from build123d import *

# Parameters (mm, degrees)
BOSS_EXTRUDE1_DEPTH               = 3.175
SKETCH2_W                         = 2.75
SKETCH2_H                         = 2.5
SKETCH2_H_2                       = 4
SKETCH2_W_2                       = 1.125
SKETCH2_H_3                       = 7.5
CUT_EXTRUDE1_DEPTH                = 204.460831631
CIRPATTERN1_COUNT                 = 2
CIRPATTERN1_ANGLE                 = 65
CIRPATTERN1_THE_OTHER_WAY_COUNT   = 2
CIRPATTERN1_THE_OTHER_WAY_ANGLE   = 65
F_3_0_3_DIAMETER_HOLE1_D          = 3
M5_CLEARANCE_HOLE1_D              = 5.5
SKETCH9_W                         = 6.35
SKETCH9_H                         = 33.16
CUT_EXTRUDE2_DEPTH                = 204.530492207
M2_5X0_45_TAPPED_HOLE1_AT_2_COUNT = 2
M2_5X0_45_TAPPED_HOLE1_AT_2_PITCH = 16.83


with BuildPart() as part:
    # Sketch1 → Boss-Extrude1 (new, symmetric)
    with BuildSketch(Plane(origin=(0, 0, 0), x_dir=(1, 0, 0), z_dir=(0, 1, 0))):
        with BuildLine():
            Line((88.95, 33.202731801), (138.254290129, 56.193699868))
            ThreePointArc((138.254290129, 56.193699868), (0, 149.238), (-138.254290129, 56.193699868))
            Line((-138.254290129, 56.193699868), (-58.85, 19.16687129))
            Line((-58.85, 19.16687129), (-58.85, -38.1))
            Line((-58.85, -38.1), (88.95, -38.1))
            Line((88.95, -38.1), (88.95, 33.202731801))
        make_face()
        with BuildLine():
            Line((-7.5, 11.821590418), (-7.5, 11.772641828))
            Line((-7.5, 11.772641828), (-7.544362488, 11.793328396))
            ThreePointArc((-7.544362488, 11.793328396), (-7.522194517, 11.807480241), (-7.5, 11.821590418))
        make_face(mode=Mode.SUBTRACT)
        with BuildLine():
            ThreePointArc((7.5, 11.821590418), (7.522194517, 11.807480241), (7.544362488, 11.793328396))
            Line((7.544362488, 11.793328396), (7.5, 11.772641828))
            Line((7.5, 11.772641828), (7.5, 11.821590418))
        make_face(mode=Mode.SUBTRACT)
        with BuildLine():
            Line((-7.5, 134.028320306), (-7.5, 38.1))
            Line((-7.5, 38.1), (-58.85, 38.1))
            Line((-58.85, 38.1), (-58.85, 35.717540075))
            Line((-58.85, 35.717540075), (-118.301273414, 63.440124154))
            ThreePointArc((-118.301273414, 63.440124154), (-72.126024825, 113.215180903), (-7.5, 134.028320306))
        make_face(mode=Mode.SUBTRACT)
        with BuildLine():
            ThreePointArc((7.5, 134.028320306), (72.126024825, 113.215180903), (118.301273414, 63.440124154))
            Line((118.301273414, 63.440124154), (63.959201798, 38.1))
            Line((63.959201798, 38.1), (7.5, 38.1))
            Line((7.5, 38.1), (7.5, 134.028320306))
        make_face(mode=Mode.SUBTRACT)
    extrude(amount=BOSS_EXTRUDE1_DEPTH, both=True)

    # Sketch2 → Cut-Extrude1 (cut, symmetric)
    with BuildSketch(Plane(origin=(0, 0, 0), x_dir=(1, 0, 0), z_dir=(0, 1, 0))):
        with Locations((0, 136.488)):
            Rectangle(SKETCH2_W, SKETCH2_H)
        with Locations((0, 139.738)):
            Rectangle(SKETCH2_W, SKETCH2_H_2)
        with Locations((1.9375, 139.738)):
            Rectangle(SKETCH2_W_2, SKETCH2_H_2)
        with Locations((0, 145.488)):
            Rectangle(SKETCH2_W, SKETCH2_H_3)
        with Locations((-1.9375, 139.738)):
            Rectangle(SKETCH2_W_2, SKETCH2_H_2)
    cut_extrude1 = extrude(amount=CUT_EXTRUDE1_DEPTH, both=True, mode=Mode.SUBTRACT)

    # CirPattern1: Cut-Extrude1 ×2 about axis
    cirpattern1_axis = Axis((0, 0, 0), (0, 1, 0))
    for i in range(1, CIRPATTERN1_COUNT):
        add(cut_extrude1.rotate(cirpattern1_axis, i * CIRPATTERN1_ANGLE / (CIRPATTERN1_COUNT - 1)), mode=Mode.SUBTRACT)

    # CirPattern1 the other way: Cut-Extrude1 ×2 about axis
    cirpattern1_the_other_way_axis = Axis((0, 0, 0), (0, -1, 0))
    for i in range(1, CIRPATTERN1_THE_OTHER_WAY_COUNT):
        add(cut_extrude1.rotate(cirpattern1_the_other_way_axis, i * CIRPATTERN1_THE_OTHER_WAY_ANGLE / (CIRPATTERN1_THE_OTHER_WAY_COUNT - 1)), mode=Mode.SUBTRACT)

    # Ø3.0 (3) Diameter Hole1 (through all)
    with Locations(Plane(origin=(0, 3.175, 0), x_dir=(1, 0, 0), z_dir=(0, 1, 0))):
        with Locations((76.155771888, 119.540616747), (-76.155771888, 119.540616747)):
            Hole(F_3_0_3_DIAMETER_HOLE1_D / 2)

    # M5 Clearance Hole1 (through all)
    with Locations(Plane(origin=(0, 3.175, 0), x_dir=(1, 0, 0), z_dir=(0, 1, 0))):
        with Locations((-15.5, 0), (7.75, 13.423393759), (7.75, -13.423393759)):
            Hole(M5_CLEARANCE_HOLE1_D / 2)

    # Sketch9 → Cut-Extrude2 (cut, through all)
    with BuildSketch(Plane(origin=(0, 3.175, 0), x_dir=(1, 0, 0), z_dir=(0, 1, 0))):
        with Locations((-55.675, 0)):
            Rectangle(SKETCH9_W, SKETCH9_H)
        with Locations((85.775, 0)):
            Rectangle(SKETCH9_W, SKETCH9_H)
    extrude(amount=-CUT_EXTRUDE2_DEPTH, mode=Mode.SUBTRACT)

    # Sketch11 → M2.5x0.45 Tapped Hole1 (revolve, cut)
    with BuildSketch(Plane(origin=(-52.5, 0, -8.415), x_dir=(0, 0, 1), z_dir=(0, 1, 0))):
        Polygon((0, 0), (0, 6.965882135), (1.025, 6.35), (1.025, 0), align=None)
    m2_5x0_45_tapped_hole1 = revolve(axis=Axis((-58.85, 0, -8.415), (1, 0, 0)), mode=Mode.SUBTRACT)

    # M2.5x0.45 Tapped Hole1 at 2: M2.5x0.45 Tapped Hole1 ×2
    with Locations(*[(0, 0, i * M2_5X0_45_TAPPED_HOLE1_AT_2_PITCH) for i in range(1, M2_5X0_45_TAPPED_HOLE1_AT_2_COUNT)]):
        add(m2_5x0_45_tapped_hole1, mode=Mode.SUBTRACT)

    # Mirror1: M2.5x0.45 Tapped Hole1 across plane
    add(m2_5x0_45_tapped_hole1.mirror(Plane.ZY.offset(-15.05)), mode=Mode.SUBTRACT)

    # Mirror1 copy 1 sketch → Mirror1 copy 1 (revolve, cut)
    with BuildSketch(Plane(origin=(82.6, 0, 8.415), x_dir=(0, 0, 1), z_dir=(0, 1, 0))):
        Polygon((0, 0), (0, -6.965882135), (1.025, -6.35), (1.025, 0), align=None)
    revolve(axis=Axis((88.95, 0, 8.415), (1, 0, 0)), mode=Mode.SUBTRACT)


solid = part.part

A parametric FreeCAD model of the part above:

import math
import FreeCAD as App
import Part
import Sketcher
Q = App.Units.Quantity


def add_polygon(sketch, points):
    """Adds a closed chain of lines whose ends are joined by coincident constraints."""
    first, n = sketch.GeometryCount, len(points)
    for a, b in zip(points, points[1:] + points[:1]):
        sketch.addGeometry(Part.LineSegment(App.Vector(*a, 0), App.Vector(*b, 0)), False)
    for i in range(n):
        sketch.addConstraint(Sketcher.Constraint("Coincident", first + i, 2, first + (i + 1) % n, 1))

doc = App.newDocument("Part")
body = doc.addObject("PartDesign::Body", "Body")

# Sketch on XZ plane
sketch1 = doc.addObject("Sketcher::SketchObject", "Sketch")
body.addObject(sketch1)
sketch1.AttachmentSupport = (doc.XZ_Plane, [""])
sketch1.MapMode = "FlatFace"
sketch1.addGeometry(Part.LineSegment(App.Vector(88.95, -33.202732, 0), App.Vector(138.25429, -56.1937, 0)), False)
sketch1.addGeometry(Part.ArcOfCircle(Part.Circle(App.Vector(0, 0, 0), App.Vector(0, 0, 1), 149.238), math.radians(-157.88063), math.radians(-22.11937)), False)
sketch1.addGeometry(Part.LineSegment(App.Vector(-138.25429, -56.1937, 0), App.Vector(-58.85, -19.166871, 0)), False)
sketch1.addGeometry(Part.LineSegment(App.Vector(-58.85, -19.166871, 0), App.Vector(-58.85, 38.1, 0)), False)
sketch1.addGeometry(Part.LineSegment(App.Vector(-58.85, 38.1, 0), App.Vector(88.95, 38.1, 0)), False)
sketch1.addGeometry(Part.LineSegment(App.Vector(88.95, 38.1, 0), App.Vector(88.95, -33.202732, 0)), False)
sketch1.addGeometry(Part.ArcOfCircle(Part.Circle(App.Vector(0.000168, 0.000263, 0), App.Vector(0, 0, 1), 14.000312), math.radians(-122.607632), math.radians(-122.392368)), False)
sketch1.addGeometry(Part.LineSegment(App.Vector(-7.5, -11.82159, 0), App.Vector(-7.5, -11.772642, 0)), False)
sketch1.addGeometry(Part.LineSegment(App.Vector(-7.5, -11.772642, 0), App.Vector(-7.544362, -11.793328, 0)), False)
sketch1.addGeometry(Part.LineSegment(App.Vector(7.5, -11.772642, 0), App.Vector(7.5, -11.82159, 0)), False)
sketch1.addGeometry(Part.ArcOfCircle(Part.Circle(App.Vector(-0.000168, 0.000263, 0), App.Vector(0, 0, 1), 14.000312), math.radians(-57.607632), math.radians(-57.392368)), False)
sketch1.addGeometry(Part.LineSegment(App.Vector(7.544362, -11.793328, 0), App.Vector(7.5, -11.772642, 0)), False)
sketch1.addGeometry(Part.ArcOfCircle(Part.Circle(App.Vector(0, 0, 0), App.Vector(0, 0, 1), 134.238), math.radians(-151.797165), math.radians(-93.202835)), False)
sketch1.addGeometry(Part.LineSegment(App.Vector(-7.5, -134.02832, 0), App.Vector(-7.5, -38.1, 0)), False)
sketch1.addGeometry(Part.LineSegment(App.Vector(-7.5, -38.1, 0), App.Vector(-58.85, -38.1, 0)), False)
sketch1.addGeometry(Part.LineSegment(App.Vector(-58.85, -38.1, 0), App.Vector(-58.85, -35.71754, 0)), False)
sketch1.addGeometry(Part.LineSegment(App.Vector(-58.85, -35.71754, 0), App.Vector(-118.301273, -63.440124, 0)), False)
sketch1.addGeometry(Part.LineSegment(App.Vector(7.5, -38.1, 0), App.Vector(7.5, -134.02832, 0)), False)
sketch1.addGeometry(Part.ArcOfCircle(Part.Circle(App.Vector(0, 0, 0), App.Vector(0, 0, 1), 134.238), math.radians(-86.797165), math.radians(-28.202835)), False)
sketch1.addGeometry(Part.LineSegment(App.Vector(118.301273, -63.440124, 0), App.Vector(63.959202, -38.1, 0)), False)
sketch1.addGeometry(Part.LineSegment(App.Vector(63.959202, -38.1, 0), App.Vector(7.5, -38.1, 0)), False)
sketch1.addConstraint(Sketcher.Constraint("Coincident", 0, 2, 1, 2))
sketch1.addConstraint(Sketcher.Constraint("Coincident", 1, 1, 2, 1))
sketch1.addConstraint(Sketcher.Constraint("Coincident", 2, 2, 3, 1))
sketch1.addConstraint(Sketcher.Constraint("Coincident", 3, 2, 4, 1))
sketch1.addConstraint(Sketcher.Constraint("Coincident", 4, 2, 5, 1))
sketch1.addConstraint(Sketcher.Constraint("Coincident", 5, 2, 0, 1))
sketch1.addConstraint(Sketcher.Constraint("Coincident", 6, 2, 7, 1))
sketch1.addConstraint(Sketcher.Constraint("Coincident", 7, 2, 8, 1))
sketch1.addConstraint(Sketcher.Constraint("Coincident", 8, 2, 6, 1))
sketch1.addConstraint(Sketcher.Constraint("Coincident", 9, 2, 10, 1))
sketch1.addConstraint(Sketcher.Constraint("Coincident", 10, 2, 11, 1))
sketch1.addConstraint(Sketcher.Constraint("Coincident", 11, 2, 9, 1))
sketch1.addConstraint(Sketcher.Constraint("Coincident", 12, 2, 13, 1))
sketch1.addConstraint(Sketcher.Constraint("Coincident", 13, 2, 14, 1))
sketch1.addConstraint(Sketcher.Constraint("Coincident", 14, 2, 15, 1))
sketch1.addConstraint(Sketcher.Constraint("Coincident", 15, 2, 16, 1))
sketch1.addConstraint(Sketcher.Constraint("Coincident", 16, 2, 12, 1))
sketch1.addConstraint(Sketcher.Constraint("Coincident", 17, 2, 18, 1))
sketch1.addConstraint(Sketcher.Constraint("Coincident", 18, 2, 19, 1))
sketch1.addConstraint(Sketcher.Constraint("Coincident", 19, 2, 20, 1))
sketch1.addConstraint(Sketcher.Constraint("Coincident", 20, 2, 17, 1))
sketch1.addConstraint(Sketcher.Constraint("Vertical", 3))
sketch1.addConstraint(Sketcher.Constraint("Horizontal", 4))
sketch1.addConstraint(Sketcher.Constraint("Vertical", 5))
sketch1.addConstraint(Sketcher.Constraint("Vertical", 7))
sketch1.addConstraint(Sketcher.Constraint("Vertical", 9))
sketch1.addConstraint(Sketcher.Constraint("Vertical", 13))
sketch1.addConstraint(Sketcher.Constraint("Horizontal", 14))
sketch1.addConstraint(Sketcher.Constraint("Vertical", 15))
sketch1.addConstraint(Sketcher.Constraint("Vertical", 17))
sketch1.addConstraint(Sketcher.Constraint("Horizontal", 20))
sketch1.addConstraint(Sketcher.Constraint("Coincident", 1, 3, -1, 1))
sketch1.addConstraint(Sketcher.Constraint("Coincident", 12, 3, -1, 1))
sketch1.addConstraint(Sketcher.Constraint("Coincident", 18, 3, -1, 1))
sketch1.addConstraint(Sketcher.Constraint("Equal", 6, 10))
sketch1.addConstraint(Sketcher.Constraint("Equal", 12, 18))
sketch1.addConstraint(Sketcher.Constraint("Symmetric", 6, 3, 10, 3, -2))
sketch1.addConstraint(Sketcher.Constraint("Symmetric", 7, 2, 11, 2, -2))
sketch1.addConstraint(Sketcher.Constraint("Symmetric", 13, 2, 20, 2, -2))
sketch1.addConstraint(Sketcher.Constraint("Symmetric", 3, 2, 14, 2, -1))
sketch1.addConstraint(Sketcher.Constraint("Parallel", 2, 8))
sketch1.addConstraint(Sketcher.Constraint("Parallel", 0, 11))
sketch1.addConstraint(Sketcher.Constraint("Parallel", 2, 16))
sketch1.addConstraint(Sketcher.Constraint("Parallel", 0, 19))
sketch1.addConstraint(Sketcher.Constraint("Horizontal", 0, 2, 1, 1))
sketch1.addConstraint(Sketcher.Constraint("Horizontal", 16, 2, 18, 2))
sketch1.addConstraint(Sketcher.Constraint("Vertical", 7, 2, 12, 2))
sketch1.addConstraint(Sketcher.Constraint("Angle", 0, Q("-25 deg")))
sketch1.addConstraint(Sketcher.Constraint("Angle", 2, Q("25 deg")))
sketch1.addConstraint(Sketcher.Constraint("DistanceX", 4, 1, 4, 2, Q("147.8 mm")))
sketch1.addConstraint(Sketcher.Constraint("Radius", 1, Q("149.238 mm")))
sketch1.addConstraint(Sketcher.Constraint("Radius", 12, Q("134.238 mm")))
sketch1.addConstraint(Sketcher.Constraint("DistanceX", 12, 2, 9, 2, Q("15 mm")))
sketch1.addConstraint(Sketcher.Constraint("DistanceX", 14, 2, 14, 1, Q("51.35 mm")))
sketch1.addConstraint(Sketcher.Constraint("DistanceY", -1, 1, 3, 2, Q("38.1 mm")))
sketch1.addConstraint(Sketcher.Constraint("Radius", 6, Q("14.000312 mm")))
sketch1.addConstraint(Sketcher.Constraint("DistanceX", 20, 2, 20, 1, Q("56.459202 mm")))
sketch1.addConstraint(Sketcher.Constraint("DistanceY", 3, 1, 3, 2, Q("57.266871 mm")))
sketch1.addConstraint(Sketcher.Constraint("DistanceY", 7, 1, 7, 2, Q("0.048949 mm")))
sketch1.addConstraint(Sketcher.Constraint("Distance", 8, Q("0.048949 mm")))
sketch1.addConstraint(Sketcher.Constraint("DistanceY", 6, 2, -1, 1, Q("11.82159 mm")))
pad1 = doc.addObject("PartDesign::Pad", "Pad")
body.addObject(pad1)
pad1.Profile = sketch1
pad1.Length = 6.35
pad1.Midplane = True

# Sketch on XZ plane
sketch2 = doc.addObject("Sketcher::SketchObject", "Sketch001")
body.addObject(sketch2)
sketch2.AttachmentSupport = (doc.XZ_Plane, [""])
sketch2.MapMode = "FlatFace"
add_polygon(sketch2, [(-1.4, -135.2), (1.4, -135.2), (1.4, -137.7), (2.5, -137.7), (2.5, -141.7), (1.4, -141.7), (1.4, -149.2), (-1.4, -149.2), (-1.4, -141.7), (-2.5, -141.7), (-2.5, -137.7), (-1.4, -137.7)])  # lines 0-11
sketch2.addConstraint(Sketcher.Constraint("Horizontal", 0))
sketch2.addConstraint(Sketcher.Constraint("Vertical", 1))
sketch2.addConstraint(Sketcher.Constraint("Horizontal", 2))
sketch2.addConstraint(Sketcher.Constraint("Vertical", 3))
sketch2.addConstraint(Sketcher.Constraint("Horizontal", 4))
sketch2.addConstraint(Sketcher.Constraint("Vertical", 5))
sketch2.addConstraint(Sketcher.Constraint("Horizontal", 6))
sketch2.addConstraint(Sketcher.Constraint("Vertical", 7))
sketch2.addConstraint(Sketcher.Constraint("Horizontal", 8))
sketch2.addConstraint(Sketcher.Constraint("Vertical", 9))
sketch2.addConstraint(Sketcher.Constraint("Horizontal", 10))
sketch2.addConstraint(Sketcher.Constraint("Vertical", 11))
sketch2.addConstraint(Sketcher.Constraint("Symmetric", 4, 2, 7, 2, -2))
sketch2.addConstraint(Sketcher.Constraint("Symmetric", 2, 2, 9, 2, -2))
sketch2.addConstraint(Sketcher.Constraint("Vertical", 1, 2, 4, 2))
sketch2.addConstraint(Sketcher.Constraint("Vertical", 7, 2, 10, 2))
sketch2.addConstraint(Sketcher.Constraint("DistanceY", 3, 2, 3, 1, Q("4 mm")))
sketch2.addConstraint(Sketcher.Constraint("DistanceY", 1, 2, 1, 1, Q("2.5 mm")))
sketch2.addConstraint(Sketcher.Constraint("DistanceY", 5, 2, 5, 1, Q("7.5 mm")))
sketch2.addConstraint(Sketcher.Constraint("DistanceX", 8, 2, 3, 2, Q("5 mm")))
sketch2.addConstraint(Sketcher.Constraint("DistanceX", 0, 1, 0, 2, Q("2.75 mm")))
sketch2.addConstraint(Sketcher.Constraint("DistanceY", 0, 2, -1, 1, Q("135.238 mm")))
pocket1 = doc.addObject("PartDesign::Pocket", "Pocket")
body.addObject(pocket1)
pocket1.Profile = sketch2
pocket1.Length = 408.921663
pocket1.Midplane = True
doc.recompute()

polarpattern = doc.addObject("PartDesign::PolarPattern", "PolarPattern")
body.addObject(polarpattern)
polarpattern.Originals = [pocket1]
polarpattern.Axis = (doc.Y_Axis, [""])
polarpattern.Angle = 65
polarpattern.Occurrences = 2
body.Tip = polarpattern
doc.recompute()

polarpattern2 = doc.addObject("PartDesign::PolarPattern", "PolarPattern001")
body.addObject(polarpattern2)
polarpattern2.Originals = [pocket1]
polarpattern2.Axis = (doc.Y_Axis, [""])
polarpattern2.Angle = 65
polarpattern2.Occurrences = 2
polarpattern2.Reversed = True
body.Tip = polarpattern2

# Sketch on XZ plane
sketch3 = doc.addObject("Sketcher::SketchObject", "Sketch002")
body.addObject(sketch3)
sketch3.AttachmentSupport = (doc.XZ_Plane, [""])
sketch3.MapMode = "FlatFace"
sketch3.AttachmentOffset = App.Placement(App.Vector(0, 0, -3.175), App.Rotation())
sketch3.addGeometry(Part.Circle(App.Vector(76.2, -119.5, 0), App.Vector(0, 0, 1), 1.5), False)
sketch3.addGeometry(Part.Circle(App.Vector(-76.2, -119.5, 0), App.Vector(0, 0, 1), 1.5), False)
sketch3.addConstraint(Sketcher.Constraint("Equal", 0, 1))
sketch3.addConstraint(Sketcher.Constraint("Symmetric", 0, 3, 1, 3, -2))
sketch3.addConstraint(Sketcher.Constraint("Diameter", 0, Q("3 mm")))
sketch3.addConstraint(Sketcher.Constraint("DistanceX", -1, 1, 0, 3, Q("76.155772 mm")))
sketch3.addConstraint(Sketcher.Constraint("DistanceY", 0, 3, -1, 1, Q("119.540617 mm")))
doc.recompute()
hole = doc.addObject("PartDesign::Hole", "Hole")
body.addObject(hole)
hole.Profile = sketch3
hole.ThreadType = "None"
hole.Diameter = 3
hole.DepthType = "ThroughAll"
hole.Reversed = True

# Sketch on XZ plane
sketch4 = doc.addObject("Sketcher::SketchObject", "Sketch003")
body.addObject(sketch4)
sketch4.AttachmentSupport = (doc.XZ_Plane, [""])
sketch4.MapMode = "FlatFace"
sketch4.AttachmentOffset = App.Placement(App.Vector(0, 0, -3.175), App.Rotation())
sketch4.addGeometry(Part.Circle(App.Vector(-15.5, 0, 0), App.Vector(0, 0, 1), 2.8), False)
sketch4.addGeometry(Part.Circle(App.Vector(7.8, -13.4, 0), App.Vector(0, 0, 1), 2.8), False)
sketch4.addGeometry(Part.Circle(App.Vector(7.8, 13.4, 0), App.Vector(0, 0, 1), 2.8), False)
sketch4.addConstraint(Sketcher.Constraint("Equal", 0, 1))
sketch4.addConstraint(Sketcher.Constraint("Equal", 1, 2))
sketch4.addConstraint(Sketcher.Constraint("Symmetric", 1, 3, 2, 3, -1))
sketch4.addConstraint(Sketcher.Constraint("PointOnObject", 0, 3, -1))
sketch4.addConstraint(Sketcher.Constraint("Diameter", 0, Q("5.5 mm")))
sketch4.addConstraint(Sketcher.Constraint("DistanceX", 0, 3, -1, 1, Q("15.5 mm")))
sketch4.addConstraint(Sketcher.Constraint("DistanceX", -1, 1, 1, 3, Q("7.75 mm")))
sketch4.addConstraint(Sketcher.Constraint("DistanceY", 1, 3, -1, 1, Q("13.423394 mm")))
doc.recompute()
hole2 = doc.addObject("PartDesign::Hole", "Hole001")
body.addObject(hole2)
hole2.Profile = sketch4
hole2.ThreadType = "None"
hole2.Diameter = 5.5
hole2.DepthType = "ThroughAll"
hole2.Reversed = True

# Sketch on XZ plane
sketch5 = doc.addObject("Sketcher::SketchObject", "Sketch004")
body.addObject(sketch5)
sketch5.AttachmentSupport = (doc.XZ_Plane, [""])
sketch5.MapMode = "FlatFace"
sketch5.AttachmentOffset = App.Placement(App.Vector(0, 0, -3.175), App.Rotation())
add_polygon(sketch5, [(-59, -17), (-59, 17), (-52, 17), (-52, -17)])  # lines 0-3
add_polygon(sketch5, [(83, -17), (83, 17), (89, 17), (89, -17)])  # lines 4-7
sketch5.addConstraint(Sketcher.Constraint("Vertical", 0))
sketch5.addConstraint(Sketcher.Constraint("Horizontal", 1))
sketch5.addConstraint(Sketcher.Constraint("Vertical", 2))
sketch5.addConstraint(Sketcher.Constraint("Horizontal", 3))
sketch5.addConstraint(Sketcher.Constraint("Vertical", 4))
sketch5.addConstraint(Sketcher.Constraint("Horizontal", 5))
sketch5.addConstraint(Sketcher.Constraint("Vertical", 6))
sketch5.addConstraint(Sketcher.Constraint("Horizontal", 7))
sketch5.addConstraint(Sketcher.Constraint("Horizontal", 1, 2, 4, 2))
sketch5.addConstraint(Sketcher.Constraint("Horizontal", 3, 2, 6, 2))
sketch5.addConstraint(Sketcher.Constraint("Equal", 3, 5))
sketch5.addConstraint(Sketcher.Constraint("DistanceX", 1, 1, 1, 2, Q("6.35 mm")))
sketch5.addConstraint(Sketcher.Constraint("DistanceY", 0, 1, 0, 2, Q("33.16 mm")))
sketch5.addConstraint(Sketcher.Constraint("DistanceX", 1, 2, -1, 1, Q("52.5 mm")))
sketch5.addConstraint(Sketcher.Constraint("DistanceX", -1, 1, 4, 2, Q("82.6 mm")))
sketch5.addConstraint(Sketcher.Constraint("DistanceY", -1, 1, 0, 2, Q("16.58 mm")))
pocket2 = doc.addObject("PartDesign::Pocket", "Pocket001")
body.addObject(pocket2)
pocket2.Profile = sketch5
pocket2.Type = "ThroughAll"
pocket2.Reversed = True

# Sketch on XZ plane
sketch6 = doc.addObject("Sketcher::SketchObject", "Sketch005")
body.addObject(sketch6)
sketch6.AttachmentSupport = (doc.XZ_Plane, [""])
sketch6.MapMode = "FlatFace"
add_polygon(sketch6, [(-45.5, -8.4), (-52.5, -8.4), (-52.5, -7.4), (-46.1, -7.4)])  # lines 0-3
sketch6.addGeometry(Part.LineSegment(App.Vector(-52.5, -8.4, 0), App.Vector(-45.5, -8.4, 0)), True)  # axis
sketch6.addConstraint(Sketcher.Constraint("Horizontal", 0))
sketch6.addConstraint(Sketcher.Constraint("Vertical", 1))
sketch6.addConstraint(Sketcher.Constraint("Horizontal", 2))
sketch6.addConstraint(Sketcher.Constraint("Horizontal", 4))
sketch6.addConstraint(Sketcher.Constraint("Coincident", 4, 1, 0, 2))
sketch6.addConstraint(Sketcher.Constraint("Equal", 0, 4))
sketch6.addConstraint(Sketcher.Constraint("Angle", 3, Q("-59 deg")))
sketch6.addConstraint(Sketcher.Constraint("DistanceX", 2, 1, 2, 2, Q("6.35 mm")))
sketch6.addConstraint(Sketcher.Constraint("DistanceX", 0, 2, -1, 1, Q("52.5 mm")))
sketch6.addConstraint(Sketcher.Constraint("DistanceY", 1, 1, 1, 2, Q("1.025 mm")))
sketch6.addConstraint(Sketcher.Constraint("DistanceY", 1, 2, -1, 1, Q("7.39 mm")))
groove = doc.addObject("PartDesign::Groove", "Groove")
body.addObject(groove)
groove.Profile = sketch6
groove.ReferenceAxis = (sketch6, ["Axis0"])
groove.Angle = 360
doc.recompute()

linearpattern = doc.addObject("PartDesign::LinearPattern", "LinearPattern")
body.addObject(linearpattern)
linearpattern.Originals = [groove]
linearpattern.Direction = (doc.Z_Axis, [""])
linearpattern.Mode = "offset"
linearpattern.Offset = 16.83
linearpattern.Occurrences = 2
body.Tip = linearpattern
doc.recompute()

datumplane = doc.addObject("PartDesign::Plane", "DatumPlane")
body.addObject(datumplane)
datumplane.AttachmentSupport = (doc.YZ_Plane, [""])
datumplane.MapMode = "FlatFace"
datumplane.AttachmentOffset = App.Placement(App.Vector(0, 0, 15.05), App.Rotation())
mirrored = doc.addObject("PartDesign::Mirrored", "Mirrored")
body.addObject(mirrored)
mirrored.Originals = [groove]
mirrored.MirrorPlane = (datumplane, [""])
body.Tip = mirrored

# Sketch on XZ plane
sketch7 = doc.addObject("Sketcher::SketchObject", "Sketch006")
body.addObject(sketch7)
sketch7.AttachmentSupport = (doc.XZ_Plane, [""])
sketch7.MapMode = "FlatFace"
add_polygon(sketch7, [(82.6, 8.4), (75.6, 8.4), (76.2, 9.4), (82.6, 9.4)])  # lines 0-3
sketch7.addGeometry(Part.LineSegment(App.Vector(75.6, 8.4, 0), App.Vector(82.6, 8.4, 0)), True)  # axis
sketch7.addConstraint(Sketcher.Constraint("Horizontal", 0))
sketch7.addConstraint(Sketcher.Constraint("Horizontal", 2))
sketch7.addConstraint(Sketcher.Constraint("Vertical", 3))
sketch7.addConstraint(Sketcher.Constraint("Horizontal", 4))
sketch7.addConstraint(Sketcher.Constraint("Coincident", 4, 1, 0, 2))
sketch7.addConstraint(Sketcher.Constraint("Vertical", 2, 2, 4, 2))
sketch7.addConstraint(Sketcher.Constraint("Angle", 1, Q("59 deg")))
sketch7.addConstraint(Sketcher.Constraint("DistanceX", 2, 1, 2, 2, Q("6.35 mm")))
sketch7.addConstraint(Sketcher.Constraint("DistanceX", -1, 1, 2, 2, Q("82.6 mm")))
sketch7.addConstraint(Sketcher.Constraint("DistanceY", 3, 2, 3, 1, Q("1.025 mm")))
sketch7.addConstraint(Sketcher.Constraint("DistanceY", -1, 1, 1, 2, Q("9.44 mm")))
groove2 = doc.addObject("PartDesign::Groove", "Groove001")
body.addObject(groove2)
groove2.Profile = sketch7
groove2.ReferenceAxis = (sketch7, ["Axis0"])
groove2.Angle = 360

doc.recompute()
